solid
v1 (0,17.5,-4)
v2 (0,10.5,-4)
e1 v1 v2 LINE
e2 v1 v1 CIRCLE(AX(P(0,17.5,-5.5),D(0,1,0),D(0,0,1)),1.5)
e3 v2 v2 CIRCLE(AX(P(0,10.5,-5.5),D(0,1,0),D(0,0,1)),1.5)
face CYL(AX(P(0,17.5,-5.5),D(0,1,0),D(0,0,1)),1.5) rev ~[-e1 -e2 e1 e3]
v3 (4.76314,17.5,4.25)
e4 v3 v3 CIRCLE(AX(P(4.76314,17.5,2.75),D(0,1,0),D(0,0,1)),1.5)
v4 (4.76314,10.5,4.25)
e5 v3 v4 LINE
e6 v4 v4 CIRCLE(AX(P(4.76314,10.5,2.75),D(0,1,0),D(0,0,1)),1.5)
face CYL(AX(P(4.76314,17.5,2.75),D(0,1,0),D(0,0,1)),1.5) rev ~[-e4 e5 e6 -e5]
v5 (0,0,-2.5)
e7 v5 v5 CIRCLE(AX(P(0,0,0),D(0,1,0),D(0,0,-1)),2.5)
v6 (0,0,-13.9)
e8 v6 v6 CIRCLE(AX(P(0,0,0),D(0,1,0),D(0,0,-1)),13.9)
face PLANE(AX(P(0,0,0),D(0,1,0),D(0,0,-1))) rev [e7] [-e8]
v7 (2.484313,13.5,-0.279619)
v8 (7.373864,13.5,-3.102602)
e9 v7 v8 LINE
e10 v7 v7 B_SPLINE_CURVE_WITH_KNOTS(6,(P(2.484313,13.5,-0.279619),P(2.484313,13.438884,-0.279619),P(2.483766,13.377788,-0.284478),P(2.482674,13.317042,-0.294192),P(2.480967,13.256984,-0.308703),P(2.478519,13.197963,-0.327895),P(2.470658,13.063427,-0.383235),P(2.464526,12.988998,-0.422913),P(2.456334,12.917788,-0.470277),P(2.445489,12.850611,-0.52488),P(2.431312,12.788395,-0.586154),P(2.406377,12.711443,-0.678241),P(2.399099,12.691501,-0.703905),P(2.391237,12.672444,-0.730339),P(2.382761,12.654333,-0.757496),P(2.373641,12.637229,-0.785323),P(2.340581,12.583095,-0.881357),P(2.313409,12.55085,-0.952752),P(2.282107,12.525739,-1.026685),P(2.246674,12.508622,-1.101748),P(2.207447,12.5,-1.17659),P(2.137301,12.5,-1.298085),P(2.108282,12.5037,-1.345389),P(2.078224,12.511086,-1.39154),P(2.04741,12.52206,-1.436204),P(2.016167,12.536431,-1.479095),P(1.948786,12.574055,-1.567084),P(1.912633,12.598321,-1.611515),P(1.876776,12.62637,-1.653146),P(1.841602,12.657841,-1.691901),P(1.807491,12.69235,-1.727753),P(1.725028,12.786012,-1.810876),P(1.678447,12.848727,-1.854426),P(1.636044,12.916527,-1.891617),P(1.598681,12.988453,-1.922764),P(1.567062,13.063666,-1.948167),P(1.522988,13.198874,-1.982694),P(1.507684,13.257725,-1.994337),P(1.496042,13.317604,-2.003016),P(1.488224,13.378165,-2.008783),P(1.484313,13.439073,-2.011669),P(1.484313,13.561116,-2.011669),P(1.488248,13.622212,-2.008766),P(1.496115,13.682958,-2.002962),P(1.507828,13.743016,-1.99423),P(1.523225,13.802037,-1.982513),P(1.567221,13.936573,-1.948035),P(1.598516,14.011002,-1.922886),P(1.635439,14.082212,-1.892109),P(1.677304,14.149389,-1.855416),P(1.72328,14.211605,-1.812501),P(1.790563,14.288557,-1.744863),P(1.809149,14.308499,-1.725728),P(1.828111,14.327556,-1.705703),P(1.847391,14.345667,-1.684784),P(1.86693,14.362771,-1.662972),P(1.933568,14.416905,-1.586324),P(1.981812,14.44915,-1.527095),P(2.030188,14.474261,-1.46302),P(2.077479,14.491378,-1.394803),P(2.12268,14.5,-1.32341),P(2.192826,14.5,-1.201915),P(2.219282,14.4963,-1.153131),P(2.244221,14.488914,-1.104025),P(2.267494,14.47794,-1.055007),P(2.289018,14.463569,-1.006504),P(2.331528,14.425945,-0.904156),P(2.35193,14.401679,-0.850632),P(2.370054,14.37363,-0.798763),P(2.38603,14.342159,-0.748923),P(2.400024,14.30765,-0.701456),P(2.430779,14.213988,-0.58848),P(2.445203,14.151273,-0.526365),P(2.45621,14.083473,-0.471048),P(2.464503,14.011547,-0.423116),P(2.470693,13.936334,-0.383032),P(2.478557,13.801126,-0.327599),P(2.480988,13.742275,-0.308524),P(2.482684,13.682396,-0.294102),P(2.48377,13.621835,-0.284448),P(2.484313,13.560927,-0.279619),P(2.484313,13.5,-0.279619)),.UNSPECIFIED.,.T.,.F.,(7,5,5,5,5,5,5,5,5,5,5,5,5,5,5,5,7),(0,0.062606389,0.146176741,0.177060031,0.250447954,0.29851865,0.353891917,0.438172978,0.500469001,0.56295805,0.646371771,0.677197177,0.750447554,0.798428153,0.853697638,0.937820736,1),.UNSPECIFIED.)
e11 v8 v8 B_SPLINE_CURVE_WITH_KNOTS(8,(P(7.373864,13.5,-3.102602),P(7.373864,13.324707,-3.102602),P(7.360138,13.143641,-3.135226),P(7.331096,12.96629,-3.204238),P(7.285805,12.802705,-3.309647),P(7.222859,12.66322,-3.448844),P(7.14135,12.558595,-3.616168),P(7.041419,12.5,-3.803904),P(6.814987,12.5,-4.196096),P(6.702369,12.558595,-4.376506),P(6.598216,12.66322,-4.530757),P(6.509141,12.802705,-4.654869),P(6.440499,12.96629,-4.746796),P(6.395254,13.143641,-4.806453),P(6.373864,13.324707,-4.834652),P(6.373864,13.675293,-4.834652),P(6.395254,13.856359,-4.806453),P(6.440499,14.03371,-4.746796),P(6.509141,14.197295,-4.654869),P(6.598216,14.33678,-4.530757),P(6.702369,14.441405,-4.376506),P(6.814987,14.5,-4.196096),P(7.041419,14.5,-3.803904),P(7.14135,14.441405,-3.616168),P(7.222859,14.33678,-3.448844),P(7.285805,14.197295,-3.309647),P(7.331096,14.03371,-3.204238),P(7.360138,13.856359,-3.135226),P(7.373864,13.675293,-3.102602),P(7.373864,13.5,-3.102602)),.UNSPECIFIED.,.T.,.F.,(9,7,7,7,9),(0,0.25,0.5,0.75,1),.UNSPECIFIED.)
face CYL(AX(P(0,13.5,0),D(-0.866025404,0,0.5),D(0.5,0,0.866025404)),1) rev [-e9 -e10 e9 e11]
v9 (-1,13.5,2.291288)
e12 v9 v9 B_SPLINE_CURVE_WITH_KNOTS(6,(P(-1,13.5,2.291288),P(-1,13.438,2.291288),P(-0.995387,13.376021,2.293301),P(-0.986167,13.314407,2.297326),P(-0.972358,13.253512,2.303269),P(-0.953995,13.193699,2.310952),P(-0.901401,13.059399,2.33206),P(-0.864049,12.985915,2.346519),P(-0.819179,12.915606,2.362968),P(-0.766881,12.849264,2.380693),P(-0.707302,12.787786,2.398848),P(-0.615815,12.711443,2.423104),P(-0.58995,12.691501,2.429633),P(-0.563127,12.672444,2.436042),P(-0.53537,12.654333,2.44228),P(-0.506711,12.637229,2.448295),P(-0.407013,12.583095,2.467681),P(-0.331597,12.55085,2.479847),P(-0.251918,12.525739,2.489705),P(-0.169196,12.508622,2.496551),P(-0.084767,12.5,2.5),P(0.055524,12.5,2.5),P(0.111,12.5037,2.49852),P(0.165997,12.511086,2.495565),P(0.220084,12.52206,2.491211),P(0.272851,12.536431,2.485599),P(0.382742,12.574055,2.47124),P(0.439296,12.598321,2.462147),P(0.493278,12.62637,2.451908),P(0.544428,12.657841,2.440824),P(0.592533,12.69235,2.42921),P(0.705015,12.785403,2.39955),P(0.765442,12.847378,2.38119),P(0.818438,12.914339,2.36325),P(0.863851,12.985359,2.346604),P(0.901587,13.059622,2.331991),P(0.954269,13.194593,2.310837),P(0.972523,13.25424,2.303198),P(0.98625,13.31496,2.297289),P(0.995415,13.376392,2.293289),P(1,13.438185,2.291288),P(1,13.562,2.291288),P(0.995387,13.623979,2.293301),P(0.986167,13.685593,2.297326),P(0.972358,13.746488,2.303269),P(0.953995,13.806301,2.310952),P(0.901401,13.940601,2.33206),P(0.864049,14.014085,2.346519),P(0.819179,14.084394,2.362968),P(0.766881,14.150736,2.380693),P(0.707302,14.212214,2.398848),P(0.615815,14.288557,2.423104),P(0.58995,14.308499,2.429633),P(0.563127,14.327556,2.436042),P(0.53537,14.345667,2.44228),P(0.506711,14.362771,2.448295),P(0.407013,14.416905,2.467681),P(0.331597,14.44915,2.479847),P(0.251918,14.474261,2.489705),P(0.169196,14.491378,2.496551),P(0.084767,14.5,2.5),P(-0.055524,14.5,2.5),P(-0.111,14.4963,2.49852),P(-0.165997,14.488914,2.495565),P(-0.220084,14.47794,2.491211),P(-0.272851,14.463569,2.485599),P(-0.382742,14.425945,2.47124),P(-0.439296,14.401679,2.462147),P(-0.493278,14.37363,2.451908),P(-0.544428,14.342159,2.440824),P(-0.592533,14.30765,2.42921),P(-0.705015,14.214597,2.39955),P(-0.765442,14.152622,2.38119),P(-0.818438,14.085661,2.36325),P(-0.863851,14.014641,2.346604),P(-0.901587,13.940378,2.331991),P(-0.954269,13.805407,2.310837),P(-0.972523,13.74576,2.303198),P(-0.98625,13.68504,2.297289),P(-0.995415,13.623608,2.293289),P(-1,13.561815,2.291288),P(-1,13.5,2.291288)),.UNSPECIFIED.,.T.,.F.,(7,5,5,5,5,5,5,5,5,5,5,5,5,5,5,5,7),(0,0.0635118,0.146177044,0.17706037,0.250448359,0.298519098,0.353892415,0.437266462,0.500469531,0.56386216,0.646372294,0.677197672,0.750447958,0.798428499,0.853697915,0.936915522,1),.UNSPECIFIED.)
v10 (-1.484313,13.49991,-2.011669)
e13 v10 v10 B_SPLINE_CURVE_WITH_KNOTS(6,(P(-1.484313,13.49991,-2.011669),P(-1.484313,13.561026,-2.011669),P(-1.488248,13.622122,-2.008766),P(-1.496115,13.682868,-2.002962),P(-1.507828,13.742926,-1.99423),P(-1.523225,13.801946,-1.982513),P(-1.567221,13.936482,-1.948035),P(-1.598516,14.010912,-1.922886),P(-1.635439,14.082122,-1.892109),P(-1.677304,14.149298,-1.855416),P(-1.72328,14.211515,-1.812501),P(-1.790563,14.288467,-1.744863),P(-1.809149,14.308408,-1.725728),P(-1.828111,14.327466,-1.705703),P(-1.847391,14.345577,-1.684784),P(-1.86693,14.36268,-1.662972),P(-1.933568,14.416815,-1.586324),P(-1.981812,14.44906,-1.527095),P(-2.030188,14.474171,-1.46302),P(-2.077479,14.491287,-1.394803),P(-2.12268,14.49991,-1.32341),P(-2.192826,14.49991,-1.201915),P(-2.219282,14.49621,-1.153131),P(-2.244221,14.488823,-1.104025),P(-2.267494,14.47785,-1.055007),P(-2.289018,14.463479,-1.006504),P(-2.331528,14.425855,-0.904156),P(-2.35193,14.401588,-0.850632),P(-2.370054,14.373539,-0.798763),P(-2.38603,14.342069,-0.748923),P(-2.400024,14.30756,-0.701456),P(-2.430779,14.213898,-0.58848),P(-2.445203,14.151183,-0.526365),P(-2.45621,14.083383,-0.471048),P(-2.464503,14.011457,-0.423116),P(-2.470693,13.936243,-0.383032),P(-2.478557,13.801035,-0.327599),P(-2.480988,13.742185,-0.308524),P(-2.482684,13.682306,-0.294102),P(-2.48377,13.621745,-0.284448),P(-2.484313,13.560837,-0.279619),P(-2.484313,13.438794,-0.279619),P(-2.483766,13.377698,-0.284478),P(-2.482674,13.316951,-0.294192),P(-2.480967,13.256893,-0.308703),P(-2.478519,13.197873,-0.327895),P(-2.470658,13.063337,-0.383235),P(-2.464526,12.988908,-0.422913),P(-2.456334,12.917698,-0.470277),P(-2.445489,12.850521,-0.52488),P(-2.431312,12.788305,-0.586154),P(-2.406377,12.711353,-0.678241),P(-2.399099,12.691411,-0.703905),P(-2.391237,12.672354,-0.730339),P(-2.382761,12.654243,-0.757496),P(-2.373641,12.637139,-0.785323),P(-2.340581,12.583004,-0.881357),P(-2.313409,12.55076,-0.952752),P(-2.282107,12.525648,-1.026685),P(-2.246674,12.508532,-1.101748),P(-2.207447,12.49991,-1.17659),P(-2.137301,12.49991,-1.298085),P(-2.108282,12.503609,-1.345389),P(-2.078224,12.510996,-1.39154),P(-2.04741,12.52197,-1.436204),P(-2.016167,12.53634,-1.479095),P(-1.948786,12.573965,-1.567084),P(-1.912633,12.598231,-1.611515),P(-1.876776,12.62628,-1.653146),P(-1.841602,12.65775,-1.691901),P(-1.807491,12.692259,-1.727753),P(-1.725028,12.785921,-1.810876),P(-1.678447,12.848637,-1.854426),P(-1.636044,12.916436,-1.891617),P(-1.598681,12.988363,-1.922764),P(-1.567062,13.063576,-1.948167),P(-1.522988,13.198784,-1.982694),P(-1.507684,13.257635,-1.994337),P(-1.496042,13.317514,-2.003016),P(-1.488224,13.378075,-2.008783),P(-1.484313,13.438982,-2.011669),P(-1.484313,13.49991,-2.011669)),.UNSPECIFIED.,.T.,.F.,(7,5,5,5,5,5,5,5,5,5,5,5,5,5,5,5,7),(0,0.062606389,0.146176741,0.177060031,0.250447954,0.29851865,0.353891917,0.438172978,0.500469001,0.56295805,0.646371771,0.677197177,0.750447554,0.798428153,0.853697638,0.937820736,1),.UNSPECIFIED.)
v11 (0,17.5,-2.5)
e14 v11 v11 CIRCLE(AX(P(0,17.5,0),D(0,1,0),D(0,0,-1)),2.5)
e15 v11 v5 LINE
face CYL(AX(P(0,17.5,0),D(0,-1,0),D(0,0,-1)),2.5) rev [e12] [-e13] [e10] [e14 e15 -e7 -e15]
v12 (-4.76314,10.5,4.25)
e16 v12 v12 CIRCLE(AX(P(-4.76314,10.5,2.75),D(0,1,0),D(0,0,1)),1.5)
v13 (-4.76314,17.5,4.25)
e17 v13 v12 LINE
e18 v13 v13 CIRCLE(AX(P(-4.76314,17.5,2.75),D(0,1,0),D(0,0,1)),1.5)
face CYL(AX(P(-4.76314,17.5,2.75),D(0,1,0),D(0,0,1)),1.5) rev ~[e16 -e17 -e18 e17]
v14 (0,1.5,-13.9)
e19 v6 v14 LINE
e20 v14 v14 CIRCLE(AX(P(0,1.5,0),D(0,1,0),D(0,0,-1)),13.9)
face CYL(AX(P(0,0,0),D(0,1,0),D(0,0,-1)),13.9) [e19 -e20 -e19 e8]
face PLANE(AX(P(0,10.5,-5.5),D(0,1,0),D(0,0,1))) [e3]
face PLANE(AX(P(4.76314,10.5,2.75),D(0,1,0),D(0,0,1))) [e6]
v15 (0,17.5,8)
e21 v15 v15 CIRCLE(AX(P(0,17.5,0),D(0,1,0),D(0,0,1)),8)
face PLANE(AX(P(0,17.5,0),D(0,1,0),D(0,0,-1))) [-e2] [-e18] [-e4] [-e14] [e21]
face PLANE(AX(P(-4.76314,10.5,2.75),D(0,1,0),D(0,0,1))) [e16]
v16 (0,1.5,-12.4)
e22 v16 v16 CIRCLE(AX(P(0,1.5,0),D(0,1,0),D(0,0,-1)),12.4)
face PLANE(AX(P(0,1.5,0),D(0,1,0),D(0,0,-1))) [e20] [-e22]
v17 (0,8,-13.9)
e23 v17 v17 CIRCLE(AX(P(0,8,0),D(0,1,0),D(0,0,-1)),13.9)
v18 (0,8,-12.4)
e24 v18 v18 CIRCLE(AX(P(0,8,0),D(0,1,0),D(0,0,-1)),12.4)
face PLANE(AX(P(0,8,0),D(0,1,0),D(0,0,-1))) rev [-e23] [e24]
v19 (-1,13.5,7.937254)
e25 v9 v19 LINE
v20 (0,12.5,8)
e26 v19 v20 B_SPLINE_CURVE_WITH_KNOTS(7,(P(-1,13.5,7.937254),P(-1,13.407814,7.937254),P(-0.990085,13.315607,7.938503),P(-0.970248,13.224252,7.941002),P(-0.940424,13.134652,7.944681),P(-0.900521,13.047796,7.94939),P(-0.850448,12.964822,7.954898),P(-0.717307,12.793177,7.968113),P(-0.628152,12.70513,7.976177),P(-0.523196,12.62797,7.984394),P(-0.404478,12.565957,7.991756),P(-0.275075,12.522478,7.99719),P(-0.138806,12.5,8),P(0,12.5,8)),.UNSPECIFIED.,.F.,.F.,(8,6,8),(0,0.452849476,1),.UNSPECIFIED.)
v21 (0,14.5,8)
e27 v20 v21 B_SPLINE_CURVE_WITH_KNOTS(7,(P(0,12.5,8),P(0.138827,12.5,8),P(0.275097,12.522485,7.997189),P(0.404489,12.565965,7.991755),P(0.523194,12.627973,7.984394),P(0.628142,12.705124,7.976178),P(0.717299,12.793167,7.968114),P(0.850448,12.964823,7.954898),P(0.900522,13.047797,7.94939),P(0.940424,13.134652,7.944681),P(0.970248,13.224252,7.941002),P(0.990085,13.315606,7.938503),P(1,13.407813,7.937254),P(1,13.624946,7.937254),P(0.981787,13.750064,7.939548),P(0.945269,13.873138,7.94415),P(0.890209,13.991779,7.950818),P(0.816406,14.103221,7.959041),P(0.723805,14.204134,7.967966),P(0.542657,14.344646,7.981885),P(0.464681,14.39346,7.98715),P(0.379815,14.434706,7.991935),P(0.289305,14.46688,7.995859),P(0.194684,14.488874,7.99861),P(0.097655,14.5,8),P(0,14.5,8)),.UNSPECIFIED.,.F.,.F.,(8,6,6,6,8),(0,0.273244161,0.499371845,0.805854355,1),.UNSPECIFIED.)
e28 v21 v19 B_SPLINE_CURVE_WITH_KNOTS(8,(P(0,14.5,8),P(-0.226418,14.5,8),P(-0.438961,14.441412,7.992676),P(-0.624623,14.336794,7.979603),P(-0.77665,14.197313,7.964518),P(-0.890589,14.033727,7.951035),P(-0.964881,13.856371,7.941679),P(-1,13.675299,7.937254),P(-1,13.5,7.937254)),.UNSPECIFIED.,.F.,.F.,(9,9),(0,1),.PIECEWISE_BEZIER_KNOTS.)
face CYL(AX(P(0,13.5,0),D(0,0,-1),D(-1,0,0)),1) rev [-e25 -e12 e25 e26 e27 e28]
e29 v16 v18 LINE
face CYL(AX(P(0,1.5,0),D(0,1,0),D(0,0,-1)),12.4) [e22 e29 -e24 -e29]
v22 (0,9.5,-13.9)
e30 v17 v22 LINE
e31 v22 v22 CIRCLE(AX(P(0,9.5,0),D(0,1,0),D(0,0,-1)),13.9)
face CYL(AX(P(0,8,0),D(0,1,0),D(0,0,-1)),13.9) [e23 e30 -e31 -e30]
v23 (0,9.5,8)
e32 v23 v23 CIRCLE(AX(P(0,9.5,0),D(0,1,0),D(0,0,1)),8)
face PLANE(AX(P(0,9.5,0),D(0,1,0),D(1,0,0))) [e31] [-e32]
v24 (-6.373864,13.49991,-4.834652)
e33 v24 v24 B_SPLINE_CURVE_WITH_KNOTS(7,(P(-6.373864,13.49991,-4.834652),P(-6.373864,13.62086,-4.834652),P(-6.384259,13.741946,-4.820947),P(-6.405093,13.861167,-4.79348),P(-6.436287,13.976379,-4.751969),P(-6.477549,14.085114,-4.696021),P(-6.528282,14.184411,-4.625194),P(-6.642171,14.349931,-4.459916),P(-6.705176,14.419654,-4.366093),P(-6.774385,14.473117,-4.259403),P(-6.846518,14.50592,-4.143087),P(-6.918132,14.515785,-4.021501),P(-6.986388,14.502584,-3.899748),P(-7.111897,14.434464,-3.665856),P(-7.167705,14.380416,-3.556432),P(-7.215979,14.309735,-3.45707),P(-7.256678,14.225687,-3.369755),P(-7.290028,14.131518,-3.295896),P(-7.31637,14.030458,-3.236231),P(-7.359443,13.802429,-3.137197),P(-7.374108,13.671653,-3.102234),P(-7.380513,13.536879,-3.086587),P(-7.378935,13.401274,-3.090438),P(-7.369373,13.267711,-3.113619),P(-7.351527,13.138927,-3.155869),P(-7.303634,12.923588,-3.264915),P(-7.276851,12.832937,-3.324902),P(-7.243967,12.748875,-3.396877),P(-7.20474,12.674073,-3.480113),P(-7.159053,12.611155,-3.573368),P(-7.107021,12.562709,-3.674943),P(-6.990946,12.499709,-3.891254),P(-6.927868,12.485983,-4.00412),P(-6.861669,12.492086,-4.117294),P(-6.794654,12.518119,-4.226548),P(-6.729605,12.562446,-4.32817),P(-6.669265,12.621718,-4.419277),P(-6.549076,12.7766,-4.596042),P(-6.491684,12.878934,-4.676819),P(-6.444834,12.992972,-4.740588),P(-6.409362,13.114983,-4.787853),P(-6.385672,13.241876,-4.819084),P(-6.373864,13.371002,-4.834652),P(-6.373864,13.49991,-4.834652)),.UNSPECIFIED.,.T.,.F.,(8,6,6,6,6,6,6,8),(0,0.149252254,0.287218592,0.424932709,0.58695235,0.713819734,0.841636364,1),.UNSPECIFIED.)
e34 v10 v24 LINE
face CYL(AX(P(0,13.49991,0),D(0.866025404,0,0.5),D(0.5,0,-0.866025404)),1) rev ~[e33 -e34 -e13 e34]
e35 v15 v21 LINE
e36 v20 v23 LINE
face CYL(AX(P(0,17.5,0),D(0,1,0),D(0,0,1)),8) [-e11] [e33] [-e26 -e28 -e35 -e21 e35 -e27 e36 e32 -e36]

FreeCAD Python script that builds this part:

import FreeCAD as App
import Part
import Sketcher

V = App.Vector
Q = App.Units.Quantity

doc = App.newDocument("Part")
body = doc.addObject("PartDesign::Body", "Body")

# Sketch on XY plane
sketch1 = body.newObject("Sketcher::SketchObject", "Sketch")
sketch1.AttachmentSupport = (doc.getObject("XY_Plane"), [""])
sketch1.MapMode = "FlatFace"
sketch1.addGeometry(Part.LineSegment(V(2.5, 0, 0), V(13.9, 0, 0)), False)
sketch1.addGeometry(Part.LineSegment(V(13.9, 0, 0), V(13.9, 1.5, 0)), False)
sketch1.addGeometry(Part.LineSegment(V(13.9, 1.5, 0), V(12.4, 1.5, 0)), False)
sketch1.addGeometry(Part.LineSegment(V(12.4, 1.5, 0), V(12.4, 8, 0)), False)
sketch1.addGeometry(Part.LineSegment(V(12.4, 8, 0), V(13.9, 8, 0)), False)
sketch1.addGeometry(Part.LineSegment(V(13.9, 8, 0), V(13.9, 9.5, 0)), False)
sketch1.addGeometry(Part.LineSegment(V(13.9, 9.5, 0), V(8.8, 9.5, 0)), False)
sketch1.addGeometry(Part.LineSegment(V(8.8, 9.5, 0), V(8.8, 17.5, 0)), False)
sketch1.addGeometry(Part.LineSegment(V(8.8, 17.5, 0), V(2.5, 17.5, 0)), False)
sketch1.addGeometry(Part.LineSegment(V(2.5, 17.5, 0), V(2.5, 0, 0)), False)
sketch1.addConstraint(Sketcher.Constraint("Coincident", 0, 2, 1, 1))
sketch1.addConstraint(Sketcher.Constraint("Coincident", 1, 2, 2, 1))
sketch1.addConstraint(Sketcher.Constraint("Coincident", 2, 2, 3, 1))
sketch1.addConstraint(Sketcher.Constraint("Coincident", 3, 2, 4, 1))
sketch1.addConstraint(Sketcher.Constraint("Coincident", 4, 2, 5, 1))
sketch1.addConstraint(Sketcher.Constraint("Coincident", 5, 2, 6, 1))
sketch1.addConstraint(Sketcher.Constraint("Coincident", 6, 2, 7, 1))
sketch1.addConstraint(Sketcher.Constraint("Coincident", 7, 2, 8, 1))
sketch1.addConstraint(Sketcher.Constraint("Coincident", 8, 2, 9, 1))
sketch1.addConstraint(Sketcher.Constraint("Coincident", 9, 2, 0, 1))
sketch1.addConstraint(Sketcher.Constraint("Horizontal", 0))
sketch1.addConstraint(Sketcher.Constraint("Vertical", 1))
sketch1.addConstraint(Sketcher.Constraint("Horizontal", 2))
sketch1.addConstraint(Sketcher.Constraint("Vertical", 3))
sketch1.addConstraint(Sketcher.Constraint("Horizontal", 4))
sketch1.addConstraint(Sketcher.Constraint("Vertical", 5))
sketch1.addConstraint(Sketcher.Constraint("Horizontal", 6))
sketch1.addConstraint(Sketcher.Constraint("Vertical", 7))
sketch1.addConstraint(Sketcher.Constraint("Horizontal", 8))
sketch1.addConstraint(Sketcher.Constraint("Vertical", 9))
sketch1.addConstraint(Sketcher.Constraint("PointOnObject", 0, 2, -1))
sketch1.addConstraint(Sketcher.Constraint("Vertical", 1, 2, 4, 2))
sketch1.addConstraint(Sketcher.Constraint("Equal", 4, 1))
sketch1.addConstraint(Sketcher.Constraint("Equal", 1, 5))
sketch1.addConstraint(Sketcher.Constraint("DistanceY", 7, 1, 7, 2, Q("8 mm")))
sketch1.addConstraint(Sketcher.Constraint("DistanceX", 0, 1, 0, 2, Q("11.4 mm")))
sketch1.addConstraint(Sketcher.Constraint("DistanceX", 2, 2, 2, 1, Q("1.5 mm")))
sketch1.addConstraint(Sketcher.Constraint("DistanceY", 3, 1, 3, 2, Q("6.5 mm")))
sketch1.addConstraint(Sketcher.Constraint("DistanceX", 6, 2, 6, 1, Q("5.05 mm")))
sketch1.addConstraint(Sketcher.Constraint("DistanceX", -1, 1, 0, 2, Q("13.9 mm")))
revolution = body.newObject("PartDesign::Revolution", "Revolution")
revolution.Profile = sketch1
revolution.ReferenceAxis = (sketch1, ["V_Axis"])
revolution.Angle = 360

# Sketch on XZ plane
sketch2 = body.newObject("Sketcher::SketchObject", "Sketch001")
sketch2.AttachmentSupport = (doc.getObject("XZ_Plane"), [""])
sketch2.MapMode = "FlatFace"
sketch2.AttachmentOffset = App.Placement(V(0, 0, -17.5), App.Rotation())
sketch2.addGeometry(Part.Circle(V(0, 0, 0), V(0, 0, 1), 9), False)
sketch2.addGeometry(Part.Circle(V(0, 0, 0), V(0, 0, 1), 8), False)
sketch2.addConstraint(Sketcher.Constraint("Coincident", 0, 3, -1, 1))
sketch2.addConstraint(Sketcher.Constraint("Coincident", 1, 3, -1, 1))
sketch2.addConstraint(Sketcher.Constraint("Diameter", 1, Q("16 mm")))
sketch2.addConstraint(Sketcher.Constraint("Diameter", 0, Q("17.7 mm")))
pocket1 = body.newObject("PartDesign::Pocket", "Pocket")
pocket1.Profile = sketch2
pocket1.Length = 8
pocket1.Reversed = True

# Sketch on XZ plane
sketch3 = body.newObject("Sketcher::SketchObject", "Sketch002")
sketch3.AttachmentSupport = (doc.getObject("XZ_Plane"), [""])
sketch3.MapMode = "FlatFace"
sketch3.AttachmentOffset = App.Placement(V(0, 0, -17.5), App.Rotation())
sketch3.addGeometry(Part.Circle(V(0, -5.5, 0), V(0, 0, 1), 1.5), False)
sketch3.addGeometry(Part.Circle(V(4.8, 2.8, 0), V(0, 0, 1), 1.5), False)
sketch3.addGeometry(Part.Circle(V(-4.8, 2.8, 0), V(0, 0, 1), 1.5), False)
sketch3.addConstraint(Sketcher.Constraint("Equal", 0, 1))
sketch3.addConstraint(Sketcher.Constraint("Equal", 1, 2))
sketch3.addConstraint(Sketcher.Constraint("Symmetric", 1, 3, 2, 3, -2))
sketch3.addConstraint(Sketcher.Constraint("PointOnObject", 0, 3, -2))
sketch3.addConstraint(Sketcher.Constraint("Diameter", 0, Q("3 mm")))
sketch3.addConstraint(Sketcher.Constraint("DistanceY", 0, 3, -1, 1, Q("5.5 mm")))
sketch3.addConstraint(Sketcher.Constraint("DistanceY", -1, 1, 1, 3, Q("2.75 mm")))
sketch3.addConstraint(Sketcher.Constraint("DistanceX", -1, 1, 1, 3, Q("4.76314 mm")))
pocket2 = body.newObject("PartDesign::Pocket", "Pocket001")
pocket2.Profile = sketch3
pocket2.Length = 7
pocket2.Reversed = True

# Sketch on XY plane
sketch4 = body.newObject("Sketcher::SketchObject", "Sketch003")
sketch4.AttachmentSupport = (doc.getObject("XY_Plane"), [""])
sketch4.MapMode = "FlatFace"
sketch4.addGeometry(Part.Circle(V(0, 13.5, 0), V(0, 0, 1), 1), False)
sketch4.addConstraint(Sketcher.Constraint("PointOnObject", 0, 3, -2))
sketch4.addConstraint(Sketcher.Constraint("Diameter", 0, Q("2 mm")))
sketch4.addConstraint(Sketcher.Constraint("DistanceY", -1, 1, 0, 3, Q("13.5 mm")))
pocket3 = body.newObject("PartDesign::Pocket", "Pocket002")
pocket3.Profile = sketch4
pocket3.Length = 10
pocket3.Reversed = True

# Sketch on an angled plane
sketch5 = body.newObject("Sketcher::SketchObject", "Sketch004")
sketch5.Placement = App.Placement(V(0, 0, 0), App.Rotation(V(0, 1, 0), V(-0.5, 0, 0.866025404), V(0.866025404, 0, 0.5), "ZXY"))
sketch5.addGeometry(Part.Circle(V(13.5, 0, 0), V(0, 0, 1), 1), False)
sketch5.addConstraint(Sketcher.Constraint("PointOnObject", 0, 3, -1))
sketch5.addConstraint(Sketcher.Constraint("Diameter", 0, Q("2 mm")))
sketch5.addConstraint(Sketcher.Constraint("DistanceX", -1, 1, 0, 3, Q("13.49991 mm")))
pocket4 = body.newObject("PartDesign::Pocket", "Pocket003")
pocket4.Profile = sketch5
pocket4.Length = 10

# Sketch on an angled plane
sketch6 = body.newObject("Sketcher::SketchObject", "Sketch005")
sketch6.Placement = App.Placement(V(0, 0, 0), App.Rotation(V(0, 1, 0), V(0.5, 0, 0.866025404), V(0.866025404, 0, -0.5), "ZXY"))
sketch6.addGeometry(Part.Circle(V(13.5, 0, 0), V(0, 0, 1), 1), False)
sketch6.addConstraint(Sketcher.Constraint("PointOnObject", 0, 3, -1))
sketch6.addConstraint(Sketcher.Constraint("Diameter", 0, Q("2 mm")))
sketch6.addConstraint(Sketcher.Constraint("DistanceX", -1, 1, 0, 3, Q("13.5 mm")))
pocket5 = body.newObject("PartDesign::Pocket", "Pocket004")
pocket5.Profile = sketch6
pocket5.Length = 10
pocket5.Reversed = True

doc.recompute()
